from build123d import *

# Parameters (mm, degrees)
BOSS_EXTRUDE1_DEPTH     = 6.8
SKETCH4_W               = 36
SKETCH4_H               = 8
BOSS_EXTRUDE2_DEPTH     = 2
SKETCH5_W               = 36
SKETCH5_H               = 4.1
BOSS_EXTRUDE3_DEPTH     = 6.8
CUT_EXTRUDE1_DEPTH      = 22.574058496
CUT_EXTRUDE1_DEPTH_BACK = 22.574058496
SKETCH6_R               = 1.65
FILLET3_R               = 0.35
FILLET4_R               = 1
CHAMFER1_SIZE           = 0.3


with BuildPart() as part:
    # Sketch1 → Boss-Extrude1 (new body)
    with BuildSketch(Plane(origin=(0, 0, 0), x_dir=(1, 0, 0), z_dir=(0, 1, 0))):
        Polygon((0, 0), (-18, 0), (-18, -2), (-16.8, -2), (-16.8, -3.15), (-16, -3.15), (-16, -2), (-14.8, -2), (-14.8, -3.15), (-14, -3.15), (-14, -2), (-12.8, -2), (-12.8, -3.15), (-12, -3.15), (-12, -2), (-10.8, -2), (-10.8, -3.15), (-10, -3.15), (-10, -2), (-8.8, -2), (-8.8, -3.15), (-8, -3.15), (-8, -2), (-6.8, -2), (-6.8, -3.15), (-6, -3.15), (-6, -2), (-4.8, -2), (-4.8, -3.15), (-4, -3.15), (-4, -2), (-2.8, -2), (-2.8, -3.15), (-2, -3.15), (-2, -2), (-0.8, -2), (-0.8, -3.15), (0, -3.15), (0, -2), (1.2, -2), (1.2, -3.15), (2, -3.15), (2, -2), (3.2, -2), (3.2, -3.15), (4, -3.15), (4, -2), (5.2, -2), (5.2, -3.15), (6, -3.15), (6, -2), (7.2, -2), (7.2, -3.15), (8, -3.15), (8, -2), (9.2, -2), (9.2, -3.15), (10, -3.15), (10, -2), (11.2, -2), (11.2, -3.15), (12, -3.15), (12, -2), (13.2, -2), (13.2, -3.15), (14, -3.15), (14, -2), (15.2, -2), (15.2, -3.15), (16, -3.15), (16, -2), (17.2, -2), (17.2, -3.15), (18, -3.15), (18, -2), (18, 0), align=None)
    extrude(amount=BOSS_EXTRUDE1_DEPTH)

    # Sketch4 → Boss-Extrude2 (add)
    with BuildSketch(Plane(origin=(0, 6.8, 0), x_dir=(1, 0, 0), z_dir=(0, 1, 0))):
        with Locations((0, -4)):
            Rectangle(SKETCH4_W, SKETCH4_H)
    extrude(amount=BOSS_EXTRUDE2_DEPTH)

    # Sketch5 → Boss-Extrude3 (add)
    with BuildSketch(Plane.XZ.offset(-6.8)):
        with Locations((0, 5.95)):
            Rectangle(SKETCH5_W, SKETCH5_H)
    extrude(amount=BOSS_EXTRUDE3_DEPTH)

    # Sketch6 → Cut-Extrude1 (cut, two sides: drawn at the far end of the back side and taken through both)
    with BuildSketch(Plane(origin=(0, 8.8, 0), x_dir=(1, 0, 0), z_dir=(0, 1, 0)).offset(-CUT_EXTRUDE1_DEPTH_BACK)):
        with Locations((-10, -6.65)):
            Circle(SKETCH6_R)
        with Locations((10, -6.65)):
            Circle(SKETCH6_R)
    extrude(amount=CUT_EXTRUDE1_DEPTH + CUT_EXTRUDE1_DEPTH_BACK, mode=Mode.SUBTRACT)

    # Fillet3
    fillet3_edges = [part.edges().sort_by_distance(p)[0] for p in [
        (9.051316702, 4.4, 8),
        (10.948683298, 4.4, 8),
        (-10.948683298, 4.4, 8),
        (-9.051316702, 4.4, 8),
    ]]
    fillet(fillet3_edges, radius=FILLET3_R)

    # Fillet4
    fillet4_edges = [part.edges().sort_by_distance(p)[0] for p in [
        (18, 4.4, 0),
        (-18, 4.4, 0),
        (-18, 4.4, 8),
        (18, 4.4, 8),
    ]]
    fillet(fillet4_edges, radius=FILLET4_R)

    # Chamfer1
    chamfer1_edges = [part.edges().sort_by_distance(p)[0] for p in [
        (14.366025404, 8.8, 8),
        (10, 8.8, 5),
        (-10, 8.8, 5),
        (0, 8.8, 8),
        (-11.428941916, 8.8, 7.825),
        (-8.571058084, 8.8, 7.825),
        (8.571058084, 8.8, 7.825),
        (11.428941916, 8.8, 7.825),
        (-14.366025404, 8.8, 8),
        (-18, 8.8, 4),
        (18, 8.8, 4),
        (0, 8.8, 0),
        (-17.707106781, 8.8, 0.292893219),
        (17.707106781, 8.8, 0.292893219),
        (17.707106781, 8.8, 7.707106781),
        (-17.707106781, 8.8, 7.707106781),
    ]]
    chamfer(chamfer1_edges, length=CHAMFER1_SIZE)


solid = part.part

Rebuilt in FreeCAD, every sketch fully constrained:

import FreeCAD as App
import Part
import Sketcher
from FreeCAD import Vector


def edges_at(feature, points):
    """Names of the edges that pass closest to the given points."""
    edges = feature.Shape.Edges
    near = lambda p: min(range(len(edges)), key=lambda i: edges[i].distToShape(Part.Vertex(*p))[0])
    return sorted({f"Edge{near(p) + 1}" for p in points})

doc = App.newDocument("Part")
body = doc.addObject("PartDesign::Body", "Body")

# Sketch on XZ plane
sketch1 = doc.addObject("Sketcher::SketchObject", "Sketch")
body.addObject(sketch1)
sketch1.AttachmentSupport = (doc.XZ_Plane, [""])
sketch1.MapMode = "FlatFace"
sketch1.addGeometry([
    Part.LineSegment(Vector(-18, 0, 0), Vector(-18, 2, 0)),  # 0
    Part.LineSegment(Vector(-18, 2, 0), Vector(-16.8, 2, 0)),  # 1
    Part.LineSegment(Vector(-16.8, 2, 0), Vector(-16.8, 3.1, 0)),  # 2
    Part.LineSegment(Vector(-16.8, 3.1, 0), Vector(-16, 3.1, 0)),  # 3
    Part.LineSegment(Vector(-16, 3.1, 0), Vector(-16, 2, 0)),  # 4
    Part.LineSegment(Vector(-16, 2, 0), Vector(-14.8, 2, 0)),  # 5
    Part.LineSegment(Vector(-14.8, 2, 0), Vector(-14.8, 3.1, 0)),  # 6
    Part.LineSegment(Vector(-14.8, 3.1, 0), Vector(-14, 3.1, 0)),  # 7
    Part.LineSegment(Vector(-14, 3.1, 0), Vector(-14, 2, 0)),  # 8
    Part.LineSegment(Vector(-14, 2, 0), Vector(-12.8, 2, 0)),  # 9
    Part.LineSegment(Vector(-12.8, 2, 0), Vector(-12.8, 3.1, 0)),  # 10
    Part.LineSegment(Vector(-12.8, 3.1, 0), Vector(-12, 3.1, 0)),  # 11
    Part.LineSegment(Vector(-12, 3.1, 0), Vector(-12, 2, 0)),  # 12
    Part.LineSegment(Vector(-12, 2, 0), Vector(-10.8, 2, 0)),  # 13
    Part.LineSegment(Vector(-10.8, 2, 0), Vector(-10.8, 3.1, 0)),  # 14
    Part.LineSegment(Vector(-10.8, 3.1, 0), Vector(-10, 3.1, 0)),  # 15
    Part.LineSegment(Vector(-10, 3.1, 0), Vector(-10, 2, 0)),  # 16
    Part.LineSegment(Vector(-10, 2, 0), Vector(-8.8, 2, 0)),  # 17
    Part.LineSegment(Vector(-8.8, 2, 0), Vector(-8.8, 3.1, 0)),  # 18
    Part.LineSegment(Vector(-8.8, 3.1, 0), Vector(-8, 3.1, 0)),  # 19
    Part.LineSegment(Vector(-8, 3.1, 0), Vector(-8, 2, 0)),  # 20
    Part.LineSegment(Vector(-8, 2, 0), Vector(-6.8, 2, 0)),  # 21
    Part.LineSegment(Vector(-6.8, 2, 0), Vector(-6.8, 3.1, 0)),  # 22
    Part.LineSegment(Vector(-6.8, 3.1, 0), Vector(-6, 3.1, 0)),  # 23
    Part.LineSegment(Vector(-6, 3.1, 0), Vector(-6, 2, 0)),  # 24
    Part.LineSegment(Vector(-6, 2, 0), Vector(-4.8, 2, 0)),  # 25
    Part.LineSegment(Vector(-4.8, 2, 0), Vector(-4.8, 3.1, 0)),  # 26
    Part.LineSegment(Vector(-4.8, 3.1, 0), Vector(-4, 3.1, 0)),  # 27
    Part.LineSegment(Vector(-4, 3.1, 0), Vector(-4, 2, 0)),  # 28
    Part.LineSegment(Vector(-4, 2, 0), Vector(-2.8, 2, 0)),  # 29
    Part.LineSegment(Vector(-2.8, 2, 0), Vector(-2.8, 3.1, 0)),  # 30
    Part.LineSegment(Vector(-2.8, 3.1, 0), Vector(-2, 3.1, 0)),  # 31
    Part.LineSegment(Vector(-2, 3.1, 0), Vector(-2, 2, 0)),  # 32
    Part.LineSegment(Vector(-2, 2, 0), Vector(-0.8, 2, 0)),  # 33
    Part.LineSegment(Vector(-0.8, 2, 0), Vector(-0.8, 3.1, 0)),  # 34
    Part.LineSegment(Vector(-0.8, 3.1, 0), Vector(0, 3.1, 0)),  # 35
    Part.LineSegment(Vector(0, 3.1, 0), Vector(0, 2, 0)),  # 36
    Part.LineSegment(Vector(0, 2, 0), Vector(1.2, 2, 0)),  # 37
    Part.LineSegment(Vector(1.2, 2, 0), Vector(1.2, 3.1, 0)),  # 38
    Part.LineSegment(Vector(1.2, 3.1, 0), Vector(2, 3.1, 0)),  # 39
    Part.LineSegment(Vector(2, 3.1, 0), Vector(2, 2, 0)),  # 40
    Part.LineSegment(Vector(2, 2, 0), Vector(3.2, 2, 0)),  # 41
    Part.LineSegment(Vector(3.2, 2, 0), Vector(3.2, 3.1, 0)),  # 42
    Part.LineSegment(Vector(3.2, 3.1, 0), Vector(4, 3.1, 0)),  # 43
    Part.LineSegment(Vector(4, 3.1, 0), Vector(4, 2, 0)),  # 44
    Part.LineSegment(Vector(4, 2, 0), Vector(5.2, 2, 0)),  # 45
    Part.LineSegment(Vector(5.2, 2, 0), Vector(5.2, 3.1, 0)),  # 46
    Part.LineSegment(Vector(5.2, 3.1, 0), Vector(6, 3.1, 0)),  # 47
    Part.LineSegment(Vector(6, 3.1, 0), Vector(6, 2, 0)),  # 48
    Part.LineSegment(Vector(6, 2, 0), Vector(7.2, 2, 0)),  # 49
    Part.LineSegment(Vector(7.2, 2, 0), Vector(7.2, 3.1, 0)),  # 50
    Part.LineSegment(Vector(7.2, 3.1, 0), Vector(8, 3.1, 0)),  # 51
    Part.LineSegment(Vector(8, 3.1, 0), Vector(8, 2, 0)),  # 52
    Part.LineSegment(Vector(8, 2, 0), Vector(9.2, 2, 0)),  # 53
    Part.LineSegment(Vector(9.2, 2, 0), Vector(9.2, 3.1, 0)),  # 54
    Part.LineSegment(Vector(9.2, 3.1, 0), Vector(10, 3.1, 0)),  # 55
    Part.LineSegment(Vector(10, 3.1, 0), Vector(10, 2, 0)),  # 56
    Part.LineSegment(Vector(10, 2, 0), Vector(11.2, 2, 0)),  # 57
    Part.LineSegment(Vector(11.2, 2, 0), Vector(11.2, 3.1, 0)),  # 58
    Part.LineSegment(Vector(11.2, 3.1, 0), Vector(12, 3.1, 0)),  # 59
    Part.LineSegment(Vector(12, 3.1, 0), Vector(12, 2, 0)),  # 60
    Part.LineSegment(Vector(12, 2, 0), Vector(13.2, 2, 0)),  # 61
    Part.LineSegment(Vector(13.2, 2, 0), Vector(13.2, 3.1, 0)),  # 62
    Part.LineSegment(Vector(13.2, 3.1, 0), Vector(14, 3.1, 0)),  # 63
    Part.LineSegment(Vector(14, 3.1, 0), Vector(14, 2, 0)),  # 64
    Part.LineSegment(Vector(14, 2, 0), Vector(15.2, 2, 0)),  # 65
    Part.LineSegment(Vector(15.2, 2, 0), Vector(15.2, 3.1, 0)),  # 66
    Part.LineSegment(Vector(15.2, 3.1, 0), Vector(16, 3.1, 0)),  # 67
    Part.LineSegment(Vector(16, 3.1, 0), Vector(16, 2, 0)),  # 68
    Part.LineSegment(Vector(16, 2, 0), Vector(17.2, 2, 0)),  # 69
    Part.LineSegment(Vector(17.2, 2, 0), Vector(17.2, 3.1, 0)),  # 70
    Part.LineSegment(Vector(17.2, 3.1, 0), Vector(18, 3.1, 0)),  # 71
    Part.LineSegment(Vector(18, 3.1, 0), Vector(18, 0, 0)),  # 72
    Part.LineSegment(Vector(18, 0, 0), Vector(-18, 0, 0)),  # 73
], False)
sketch1.addConstraint([
    Sketcher.Constraint("Coincident", 0, 2, 1, 1),
    Sketcher.Constraint("Coincident", 1, 2, 2, 1),
    Sketcher.Constraint("Coincident", 2, 2, 3, 1),
    Sketcher.Constraint("Coincident", 3, 2, 4, 1),
    Sketcher.Constraint("Coincident", 4, 2, 5, 1),
    Sketcher.Constraint("Coincident", 5, 2, 6, 1),
    Sketcher.Constraint("Coincident", 6, 2, 7, 1),
    Sketcher.Constraint("Coincident", 7, 2, 8, 1),
    Sketcher.Constraint("Coincident", 8, 2, 9, 1),
    Sketcher.Constraint("Coincident", 9, 2, 10, 1),
    Sketcher.Constraint("Coincident", 10, 2, 11, 1),
    Sketcher.Constraint("Coincident", 11, 2, 12, 1),
    Sketcher.Constraint("Coincident", 12, 2, 13, 1),
    Sketcher.Constraint("Coincident", 13, 2, 14, 1),
    Sketcher.Constraint("Coincident", 14, 2, 15, 1),
    Sketcher.Constraint("Coincident", 15, 2, 16, 1),
    Sketcher.Constraint("Coincident", 16, 2, 17, 1),
    Sketcher.Constraint("Coincident", 17, 2, 18, 1),
    Sketcher.Constraint("Coincident", 18, 2, 19, 1),
    Sketcher.Constraint("Coincident", 19, 2, 20, 1),
    Sketcher.Constraint("Coincident", 20, 2, 21, 1),
    Sketcher.Constraint("Coincident", 21, 2, 22, 1),
    Sketcher.Constraint("Coincident", 22, 2, 23, 1),
    Sketcher.Constraint("Coincident", 23, 2, 24, 1),
    Sketcher.Constraint("Coincident", 24, 2, 25, 1),
    Sketcher.Constraint("Coincident", 25, 2, 26, 1),
    Sketcher.Constraint("Coincident", 26, 2, 27, 1),
    Sketcher.Constraint("Coincident", 27, 2, 28, 1),
    Sketcher.Constraint("Coincident", 28, 2, 29, 1),
    Sketcher.Constraint("Coincident", 29, 2, 30, 1),
    Sketcher.Constraint("Coincident", 30, 2, 31, 1),
    Sketcher.Constraint("Coincident", 31, 2, 32, 1),
    Sketcher.Constraint("Coincident", 32, 2, 33, 1),
    Sketcher.Constraint("Coincident", 33, 2, 34, 1),
    Sketcher.Constraint("Coincident", 34, 2, 35, 1),
    Sketcher.Constraint("Coincident", 35, 2, 36, 1),
    Sketcher.Constraint("Coincident", 36, 2, 37, 1),
    Sketcher.Constraint("Coincident", 37, 2, 38, 1),
    Sketcher.Constraint("Coincident", 38, 2, 39, 1),
    Sketcher.Constraint("Coincident", 39, 2, 40, 1),
    Sketcher.Constraint("Coincident", 40, 2, 41, 1),
    Sketcher.Constraint("Coincident", 41, 2, 42, 1),
    Sketcher.Constraint("Coincident", 42, 2, 43, 1),
    Sketcher.Constraint("Coincident", 43, 2, 44, 1),
    Sketcher.Constraint("Coincident", 44, 2, 45, 1),
    Sketcher.Constraint("Coincident", 45, 2, 46, 1),
    Sketcher.Constraint("Coincident", 46, 2, 47, 1),
    Sketcher.Constraint("Coincident", 47, 2, 48, 1),
    Sketcher.Constraint("Coincident", 48, 2, 49, 1),
    Sketcher.Constraint("Coincident", 49, 2, 50, 1),
    Sketcher.Constraint("Coincident", 50, 2, 51, 1),
    Sketcher.Constraint("Coincident", 51, 2, 52, 1),
    Sketcher.Constraint("Coincident", 52, 2, 53, 1),
    Sketcher.Constraint("Coincident", 53, 2, 54, 1),
    Sketcher.Constraint("Coincident", 54, 2, 55, 1),
    Sketcher.Constraint("Coincident", 55, 2, 56, 1),
    Sketcher.Constraint("Coincident", 56, 2, 57, 1),
    Sketcher.Constraint("Coincident", 57, 2, 58, 1),
    Sketcher.Constraint("Coincident", 58, 2, 59, 1),
    Sketcher.Constraint("Coincident", 59, 2, 60, 1),
    Sketcher.Constraint("Coincident", 60, 2, 61, 1),
    Sketcher.Constraint("Coincident", 61, 2, 62, 1),
    Sketcher.Constraint("Coincident", 62, 2, 63, 1),
    Sketcher.Constraint("Coincident", 63, 2, 64, 1),
    Sketcher.Constraint("Coincident", 64, 2, 65, 1),
    Sketcher.Constraint("Coincident", 65, 2, 66, 1),
    Sketcher.Constraint("Coincident", 66, 2, 67, 1),
    Sketcher.Constraint("Coincident", 67, 2, 68, 1),
    Sketcher.Constraint("Coincident", 68, 2, 69, 1),
    Sketcher.Constraint("Coincident", 69, 2, 70, 1),
    Sketcher.Constraint("Coincident", 70, 2, 71, 1),
    Sketcher.Constraint("Coincident", 71, 2, 72, 1),
    Sketcher.Constraint("Coincident", 72, 2, 73, 1),
    Sketcher.Constraint("Coincident", 73, 2, 0, 1),
    Sketcher.Constraint("Vertical", 0),
    Sketcher.Constraint("Horizontal", 1),
    Sketcher.Constraint("Vertical", 2),
    Sketcher.Constraint("Horizontal", 3),
    Sketcher.Constraint("Vertical", 4),
    Sketcher.Constraint("Horizontal", 5),
    Sketcher.Constraint("Vertical", 6),
    Sketcher.Constraint("Horizontal", 7),
    Sketcher.Constraint("Vertical", 8),
    Sketcher.Constraint("Horizontal", 9),
    Sketcher.Constraint("Vertical", 10),
    Sketcher.Constraint("Horizontal", 11),
    Sketcher.Constraint("Vertical", 12),
    Sketcher.Constraint("Horizontal", 13),
    Sketcher.Constraint("Vertical", 14),
    Sketcher.Constraint("Horizontal", 15),
    Sketcher.Constraint("Vertical", 16),
    Sketcher.Constraint("Horizontal", 17),
    Sketcher.Constraint("Vertical", 18),
    Sketcher.Constraint("Horizontal", 19),
    Sketcher.Constraint("Vertical", 20),
    Sketcher.Constraint("Horizontal", 21),
    Sketcher.Constraint("Vertical", 22),
    Sketcher.Constraint("Horizontal", 23),
    Sketcher.Constraint("Vertical", 24),
    Sketcher.Constraint("Horizontal", 25),
    Sketcher.Constraint("Vertical", 26),
    Sketcher.Constraint("Horizontal", 27),
    Sketcher.Constraint("Vertical", 28),
    Sketcher.Constraint("Horizontal", 29),
    Sketcher.Constraint("Vertical", 30),
    Sketcher.Constraint("Horizontal", 31),
    Sketcher.Constraint("Vertical", 32),
    Sketcher.Constraint("Horizontal", 33),
    Sketcher.Constraint("Vertical", 34),
    Sketcher.Constraint("Horizontal", 35),
    Sketcher.Constraint("Vertical", 36),
    Sketcher.Constraint("Horizontal", 37),
    Sketcher.Constraint("Vertical", 38),
    Sketcher.Constraint("Horizontal", 39),
    Sketcher.Constraint("Vertical", 40),
    Sketcher.Constraint("Horizontal", 41),
    Sketcher.Constraint("Vertical", 42),
    Sketcher.Constraint("Horizontal", 43),
    Sketcher.Constraint("Vertical", 44),
    Sketcher.Constraint("Horizontal", 45),
    Sketcher.Constraint("Vertical", 46),
    Sketcher.Constraint("Horizontal", 47),
    Sketcher.Constraint("Vertical", 48),
    Sketcher.Constraint("Horizontal", 49),
    Sketcher.Constraint("Vertical", 50),
    Sketcher.Constraint("Horizontal", 51),
    Sketcher.Constraint("Vertical", 52),
    Sketcher.Constraint("Horizontal", 53),
    Sketcher.Constraint("Vertical", 54),
    Sketcher.Constraint("Horizontal", 55),
    Sketcher.Constraint("Vertical", 56),
    Sketcher.Constraint("Horizontal", 57),
    Sketcher.Constraint("Vertical", 58),
    Sketcher.Constraint("Horizontal", 59),
    Sketcher.Constraint("Vertical", 60),
    Sketcher.Constraint("Horizontal", 61),
    Sketcher.Constraint("Vertical", 62),
    Sketcher.Constraint("Horizontal", 63),
    Sketcher.Constraint("Vertical", 64),
    Sketcher.Constraint("Horizontal", 65),
    Sketcher.Constraint("Vertical", 66),
    Sketcher.Constraint("Horizontal", 67),
    Sketcher.Constraint("Vertical", 68),
    Sketcher.Constraint("Horizontal", 69),
    Sketcher.Constraint("Vertical", 70),
    Sketcher.Constraint("Horizontal", 71),
    Sketcher.Constraint("Vertical", 72),
    Sketcher.Constraint("Horizontal", 73),
    Sketcher.Constraint("Symmetric", 72, 2, 73, 2, -1, 1),
    Sketcher.Constraint("Symmetric", 31, 2, 39, 2, -2),
    Sketcher.Constraint("Symmetric", 27, 2, 43, 2, -2),
    Sketcher.Constraint("Symmetric", 23, 2, 47, 2, -2),
    Sketcher.Constraint("Symmetric", 19, 2, 51, 2, -2),
    Sketcher.Constraint("Symmetric", 15, 2, 55, 2, -2),
    Sketcher.Constraint("Symmetric", 11, 2, 59, 2, -2),
    Sketcher.Constraint("Symmetric", 7, 2, 63, 2, -2),
    Sketcher.Constraint("Symmetric", 3, 2, 67, 2, -2),
    Sketcher.Constraint("PointOnObject", 35, 2, -2),
    Sketcher.Constraint("Horizontal", 1, 2, 4, 2),
    Sketcher.Constraint("Horizontal", 3, 2, 6, 2),
    Sketcher.Constraint("Horizontal", 5, 2, 8, 2),
    Sketcher.Constraint("Horizontal", 7, 2, 10, 2),
    Sketcher.Constraint("Horizontal", 9, 2, 12, 2),
    Sketcher.Constraint("Horizontal", 11, 2, 14, 2),
    Sketcher.Constraint("Horizontal", 13, 2, 16, 2),
    Sketcher.Constraint("Horizontal", 15, 2, 18, 2),
    Sketcher.Constraint("Horizontal", 17, 2, 20, 2),
    Sketcher.Constraint("Horizontal", 19, 2, 22, 2),
    Sketcher.Constraint("Horizontal", 21, 2, 24, 2),
    Sketcher.Constraint("Horizontal", 23, 2, 26, 2),
    Sketcher.Constraint("Horizontal", 25, 2, 28, 2),
    Sketcher.Constraint("Horizontal", 27, 2, 30, 2),
    Sketcher.Constraint("Horizontal", 29, 2, 32, 2),
    Sketcher.Constraint("Horizontal", 31, 2, 34, 2),
    Sketcher.Constraint("Horizontal", 33, 2, 36, 2),
    Sketcher.Constraint("Horizontal", 37, 2, 40, 2),
    Sketcher.Constraint("Horizontal", 41, 2, 44, 2),
    Sketcher.Constraint("Horizontal", 45, 2, 48, 2),
    Sketcher.Constraint("Horizontal", 49, 2, 52, 2),
    Sketcher.Constraint("Horizontal", 53, 2, 56, 2),
    Sketcher.Constraint("Horizontal", 57, 2, 60, 2),
    Sketcher.Constraint("Horizontal", 61, 2, 64, 2),
    Sketcher.Constraint("Horizontal", 65, 2, 68, 2),
    Sketcher.Constraint("Horizontal", 67, 2, 70, 2),
    Sketcher.Constraint("Equal", 1, 5),
    Sketcher.Constraint("Equal", 3, 7),
    Sketcher.Constraint("Equal", 5, 9),
    Sketcher.Constraint("Equal", 7, 11),
    Sketcher.Constraint("Equal", 9, 13),
    Sketcher.Constraint("Equal", 11, 15),
    Sketcher.Constraint("Equal", 13, 17),
    Sketcher.Constraint("Equal", 15, 19),
    Sketcher.Constraint("Equal", 17, 21),
    Sketcher.Constraint("Equal", 19, 23),
    Sketcher.Constraint("Equal", 21, 25),
    Sketcher.Constraint("Equal", 23, 27),
    Sketcher.Constraint("Equal", 25, 29),
    Sketcher.Constraint("Equal", 27, 31),
    Sketcher.Constraint("Equal", 29, 33),
    Sketcher.Constraint("Equal", 31, 35),
    Sketcher.Constraint("Equal", 33, 37),
    Sketcher.Constraint("Equal", 37, 41),
    Sketcher.Constraint("Equal", 41, 45),
    Sketcher.Constraint("Equal", 45, 49),
    Sketcher.Constraint("Equal", 49, 53),
    Sketcher.Constraint("Equal", 53, 57),
    Sketcher.Constraint("Equal", 57, 61),
    Sketcher.Constraint("Equal", 61, 65),
    Sketcher.Constraint("Equal", 65, 69),
    Sketcher.Constraint("DistanceX", 73, 2, 73, 1, 36.0),
    Sketcher.Constraint("DistanceY", 0, 1, 0, 2, 2.0),
    Sketcher.Constraint("DistanceX", 1, 1, 1, 2, 1.2),
    Sketcher.Constraint("DistanceY", 2, 1, 2, 2, 1.15),
])
pad1 = doc.addObject("PartDesign::Pad", "Pad")
body.addObject(pad1)
pad1.Profile = sketch1
pad1.Length = 6.8
pad1.Reversed = True

# Sketch on XZ plane
sketch2 = doc.addObject("Sketcher::SketchObject", "Sketch001")
body.addObject(sketch2)
sketch2.AttachmentSupport = (doc.XZ_Plane, [""])
sketch2.MapMode = "FlatFace"
sketch2.AttachmentOffset = App.Placement(Vector(0, 0, -6.8), App.Rotation())
sketch2.addGeometry([
    Part.LineSegment(Vector(-18, 0, 0), Vector(-18, 8, 0)),
    Part.LineSegment(Vector(-18, 8, 0), Vector(18, 8, 0)),
    Part.LineSegment(Vector(18, 8, 0), Vector(18, 0, 0)),
    Part.LineSegment(Vector(18, 0, 0), Vector(-18, 0, 0)),
], False)
sketch2.addConstraint([
    Sketcher.Constraint("Coincident", 0, 2, 1, 1),
    Sketcher.Constraint("Coincident", 1, 2, 2, 1),
    Sketcher.Constraint("Coincident", 2, 2, 3, 1),
    Sketcher.Constraint("Coincident", 3, 2, 0, 1),
    Sketcher.Constraint("Vertical", 0),
    Sketcher.Constraint("Horizontal", 1),
    Sketcher.Constraint("Vertical", 2),
    Sketcher.Constraint("Horizontal", 3),
    Sketcher.Constraint("Symmetric", 2, 2, 3, 2, -1, 1),
    Sketcher.Constraint("DistanceX", 1, 1, 1, 2, 36.0),
    Sketcher.Constraint("DistanceY", 0, 1, 0, 2, 8.0),
])
pad2 = doc.addObject("PartDesign::Pad", "Pad001")
body.addObject(pad2)
pad2.Profile = sketch2
pad2.Length = 2
pad2.Reversed = True

# Sketch on XZ plane
sketch3 = doc.addObject("Sketcher::SketchObject", "Sketch002")
body.addObject(sketch3)
sketch3.AttachmentSupport = (doc.XZ_Plane, [""])
sketch3.MapMode = "FlatFace"
sketch3.AttachmentOffset = App.Placement(Vector(0, 0, -6.8), App.Rotation())
sketch3.addGeometry([
    Part.LineSegment(Vector(-18, 8, 0), Vector(-18, 3.9, 0)),
    Part.LineSegment(Vector(-18, 3.9, 0), Vector(18, 3.9, 0)),
    Part.LineSegment(Vector(18, 3.9, 0), Vector(18, 8, 0)),
    Part.LineSegment(Vector(18, 8, 0), Vector(-18, 8, 0)),
], False)
sketch3.addConstraint([
    Sketcher.Constraint("Coincident", 0, 2, 1, 1),
    Sketcher.Constraint("Coincident", 1, 2, 2, 1),
    Sketcher.Constraint("Coincident", 2, 2, 3, 1),
    Sketcher.Constraint("Coincident", 3, 2, 0, 1),
    Sketcher.Constraint("Vertical", 0),
    Sketcher.Constraint("Horizontal", 1),
    Sketcher.Constraint("Vertical", 2),
    Sketcher.Constraint("Horizontal", 3),
    Sketcher.Constraint("DistanceX", 1, 1, 1, 2, 36.0),
    Sketcher.Constraint("DistanceY", 0, 2, 0, 1, 4.1),
    Sketcher.Constraint("DistanceX", 0, 2, -1, 1, 18.0),
    Sketcher.Constraint("DistanceY", -1, 1, 2, 2, 8.0),
])
pad3 = doc.addObject("PartDesign::Pad", "Pad002")
body.addObject(pad3)
pad3.Profile = sketch3
pad3.Length = 6.8

# Sketch on XZ plane
sketch4 = doc.addObject("Sketcher::SketchObject", "Sketch003")
body.addObject(sketch4)
sketch4.AttachmentSupport = (doc.XZ_Plane, [""])
sketch4.MapMode = "FlatFace"
sketch4.AttachmentOffset = App.Placement(Vector(0, 0, -8.8), App.Rotation())
sketch4.addGeometry([
    Part.Circle(Vector(-10, 6.7, 0), Vector(0, 0, 1), 1.6),
    Part.Circle(Vector(10, 6.7, 0), Vector(0, 0, 1), 1.6),
], False)
sketch4.addConstraint([
    Sketcher.Constraint("Equal", 0, 1),
    Sketcher.Constraint("Symmetric", 0, 3, 1, 3, -2),
    Sketcher.Constraint("Diameter", 0, 3.3),
    Sketcher.Constraint("DistanceX", 0, 3, -1, 1, 10.0),
    Sketcher.Constraint("DistanceY", -1, 1, 0, 3, 6.65),
])
pocket1 = doc.addObject("PartDesign::Pocket", "Pocket")
body.addObject(pocket1)
pocket1.Profile = sketch4
pocket1.Type = "ThroughAll"
pocket1.Midplane = True
doc.recompute()

fillet = doc.addObject("PartDesign::Fillet", "Fillet")
body.addObject(fillet)
fillet.Base = (pocket1, edges_at(pocket1, [
    (9.051, 4.4, 8),
    (10.949, 4.4, 8),
    (-10.949, 4.4, 8),
    (-9.051, 4.4, 8),
]))
fillet.Radius = 0.35
doc.recompute()

fillet2 = doc.addObject("PartDesign::Fillet", "Fillet001")
body.addObject(fillet2)
fillet2.Base = (fillet, edges_at(fillet, [
    (18, 4.4, 0),
    (-18, 4.4, 0),
    (-18, 4.4, 8),
    (18, 4.4, 8),
]))
fillet2.Radius = 1
doc.recompute()

chamfer = doc.addObject("PartDesign::Chamfer", "Chamfer")
body.addObject(chamfer)
chamfer.Base = (fillet2, edges_at(fillet2, [
    (14.366, 8.8, 8),
    (10, 8.8, 5),
    (-10, 8.8, 5),
    (0, 8.8, 8),
    (-11.429, 8.8, 7.825),
    (-8.571, 8.8, 7.825),
    (8.571, 8.8, 7.825),
    (11.429, 8.8, 7.825),
    (-14.366, 8.8, 8),
    (-18, 8.8, 4),
    (18, 8.8, 4),
    (0, 8.8, 0),
    (-17.707, 8.8, 0.293),
    (17.707, 8.8, 0.293),
    (17.707, 8.8, 7.707),
    (-17.707, 8.8, 7.707),
]))
chamfer.Size = 0.3

doc.recompute()
